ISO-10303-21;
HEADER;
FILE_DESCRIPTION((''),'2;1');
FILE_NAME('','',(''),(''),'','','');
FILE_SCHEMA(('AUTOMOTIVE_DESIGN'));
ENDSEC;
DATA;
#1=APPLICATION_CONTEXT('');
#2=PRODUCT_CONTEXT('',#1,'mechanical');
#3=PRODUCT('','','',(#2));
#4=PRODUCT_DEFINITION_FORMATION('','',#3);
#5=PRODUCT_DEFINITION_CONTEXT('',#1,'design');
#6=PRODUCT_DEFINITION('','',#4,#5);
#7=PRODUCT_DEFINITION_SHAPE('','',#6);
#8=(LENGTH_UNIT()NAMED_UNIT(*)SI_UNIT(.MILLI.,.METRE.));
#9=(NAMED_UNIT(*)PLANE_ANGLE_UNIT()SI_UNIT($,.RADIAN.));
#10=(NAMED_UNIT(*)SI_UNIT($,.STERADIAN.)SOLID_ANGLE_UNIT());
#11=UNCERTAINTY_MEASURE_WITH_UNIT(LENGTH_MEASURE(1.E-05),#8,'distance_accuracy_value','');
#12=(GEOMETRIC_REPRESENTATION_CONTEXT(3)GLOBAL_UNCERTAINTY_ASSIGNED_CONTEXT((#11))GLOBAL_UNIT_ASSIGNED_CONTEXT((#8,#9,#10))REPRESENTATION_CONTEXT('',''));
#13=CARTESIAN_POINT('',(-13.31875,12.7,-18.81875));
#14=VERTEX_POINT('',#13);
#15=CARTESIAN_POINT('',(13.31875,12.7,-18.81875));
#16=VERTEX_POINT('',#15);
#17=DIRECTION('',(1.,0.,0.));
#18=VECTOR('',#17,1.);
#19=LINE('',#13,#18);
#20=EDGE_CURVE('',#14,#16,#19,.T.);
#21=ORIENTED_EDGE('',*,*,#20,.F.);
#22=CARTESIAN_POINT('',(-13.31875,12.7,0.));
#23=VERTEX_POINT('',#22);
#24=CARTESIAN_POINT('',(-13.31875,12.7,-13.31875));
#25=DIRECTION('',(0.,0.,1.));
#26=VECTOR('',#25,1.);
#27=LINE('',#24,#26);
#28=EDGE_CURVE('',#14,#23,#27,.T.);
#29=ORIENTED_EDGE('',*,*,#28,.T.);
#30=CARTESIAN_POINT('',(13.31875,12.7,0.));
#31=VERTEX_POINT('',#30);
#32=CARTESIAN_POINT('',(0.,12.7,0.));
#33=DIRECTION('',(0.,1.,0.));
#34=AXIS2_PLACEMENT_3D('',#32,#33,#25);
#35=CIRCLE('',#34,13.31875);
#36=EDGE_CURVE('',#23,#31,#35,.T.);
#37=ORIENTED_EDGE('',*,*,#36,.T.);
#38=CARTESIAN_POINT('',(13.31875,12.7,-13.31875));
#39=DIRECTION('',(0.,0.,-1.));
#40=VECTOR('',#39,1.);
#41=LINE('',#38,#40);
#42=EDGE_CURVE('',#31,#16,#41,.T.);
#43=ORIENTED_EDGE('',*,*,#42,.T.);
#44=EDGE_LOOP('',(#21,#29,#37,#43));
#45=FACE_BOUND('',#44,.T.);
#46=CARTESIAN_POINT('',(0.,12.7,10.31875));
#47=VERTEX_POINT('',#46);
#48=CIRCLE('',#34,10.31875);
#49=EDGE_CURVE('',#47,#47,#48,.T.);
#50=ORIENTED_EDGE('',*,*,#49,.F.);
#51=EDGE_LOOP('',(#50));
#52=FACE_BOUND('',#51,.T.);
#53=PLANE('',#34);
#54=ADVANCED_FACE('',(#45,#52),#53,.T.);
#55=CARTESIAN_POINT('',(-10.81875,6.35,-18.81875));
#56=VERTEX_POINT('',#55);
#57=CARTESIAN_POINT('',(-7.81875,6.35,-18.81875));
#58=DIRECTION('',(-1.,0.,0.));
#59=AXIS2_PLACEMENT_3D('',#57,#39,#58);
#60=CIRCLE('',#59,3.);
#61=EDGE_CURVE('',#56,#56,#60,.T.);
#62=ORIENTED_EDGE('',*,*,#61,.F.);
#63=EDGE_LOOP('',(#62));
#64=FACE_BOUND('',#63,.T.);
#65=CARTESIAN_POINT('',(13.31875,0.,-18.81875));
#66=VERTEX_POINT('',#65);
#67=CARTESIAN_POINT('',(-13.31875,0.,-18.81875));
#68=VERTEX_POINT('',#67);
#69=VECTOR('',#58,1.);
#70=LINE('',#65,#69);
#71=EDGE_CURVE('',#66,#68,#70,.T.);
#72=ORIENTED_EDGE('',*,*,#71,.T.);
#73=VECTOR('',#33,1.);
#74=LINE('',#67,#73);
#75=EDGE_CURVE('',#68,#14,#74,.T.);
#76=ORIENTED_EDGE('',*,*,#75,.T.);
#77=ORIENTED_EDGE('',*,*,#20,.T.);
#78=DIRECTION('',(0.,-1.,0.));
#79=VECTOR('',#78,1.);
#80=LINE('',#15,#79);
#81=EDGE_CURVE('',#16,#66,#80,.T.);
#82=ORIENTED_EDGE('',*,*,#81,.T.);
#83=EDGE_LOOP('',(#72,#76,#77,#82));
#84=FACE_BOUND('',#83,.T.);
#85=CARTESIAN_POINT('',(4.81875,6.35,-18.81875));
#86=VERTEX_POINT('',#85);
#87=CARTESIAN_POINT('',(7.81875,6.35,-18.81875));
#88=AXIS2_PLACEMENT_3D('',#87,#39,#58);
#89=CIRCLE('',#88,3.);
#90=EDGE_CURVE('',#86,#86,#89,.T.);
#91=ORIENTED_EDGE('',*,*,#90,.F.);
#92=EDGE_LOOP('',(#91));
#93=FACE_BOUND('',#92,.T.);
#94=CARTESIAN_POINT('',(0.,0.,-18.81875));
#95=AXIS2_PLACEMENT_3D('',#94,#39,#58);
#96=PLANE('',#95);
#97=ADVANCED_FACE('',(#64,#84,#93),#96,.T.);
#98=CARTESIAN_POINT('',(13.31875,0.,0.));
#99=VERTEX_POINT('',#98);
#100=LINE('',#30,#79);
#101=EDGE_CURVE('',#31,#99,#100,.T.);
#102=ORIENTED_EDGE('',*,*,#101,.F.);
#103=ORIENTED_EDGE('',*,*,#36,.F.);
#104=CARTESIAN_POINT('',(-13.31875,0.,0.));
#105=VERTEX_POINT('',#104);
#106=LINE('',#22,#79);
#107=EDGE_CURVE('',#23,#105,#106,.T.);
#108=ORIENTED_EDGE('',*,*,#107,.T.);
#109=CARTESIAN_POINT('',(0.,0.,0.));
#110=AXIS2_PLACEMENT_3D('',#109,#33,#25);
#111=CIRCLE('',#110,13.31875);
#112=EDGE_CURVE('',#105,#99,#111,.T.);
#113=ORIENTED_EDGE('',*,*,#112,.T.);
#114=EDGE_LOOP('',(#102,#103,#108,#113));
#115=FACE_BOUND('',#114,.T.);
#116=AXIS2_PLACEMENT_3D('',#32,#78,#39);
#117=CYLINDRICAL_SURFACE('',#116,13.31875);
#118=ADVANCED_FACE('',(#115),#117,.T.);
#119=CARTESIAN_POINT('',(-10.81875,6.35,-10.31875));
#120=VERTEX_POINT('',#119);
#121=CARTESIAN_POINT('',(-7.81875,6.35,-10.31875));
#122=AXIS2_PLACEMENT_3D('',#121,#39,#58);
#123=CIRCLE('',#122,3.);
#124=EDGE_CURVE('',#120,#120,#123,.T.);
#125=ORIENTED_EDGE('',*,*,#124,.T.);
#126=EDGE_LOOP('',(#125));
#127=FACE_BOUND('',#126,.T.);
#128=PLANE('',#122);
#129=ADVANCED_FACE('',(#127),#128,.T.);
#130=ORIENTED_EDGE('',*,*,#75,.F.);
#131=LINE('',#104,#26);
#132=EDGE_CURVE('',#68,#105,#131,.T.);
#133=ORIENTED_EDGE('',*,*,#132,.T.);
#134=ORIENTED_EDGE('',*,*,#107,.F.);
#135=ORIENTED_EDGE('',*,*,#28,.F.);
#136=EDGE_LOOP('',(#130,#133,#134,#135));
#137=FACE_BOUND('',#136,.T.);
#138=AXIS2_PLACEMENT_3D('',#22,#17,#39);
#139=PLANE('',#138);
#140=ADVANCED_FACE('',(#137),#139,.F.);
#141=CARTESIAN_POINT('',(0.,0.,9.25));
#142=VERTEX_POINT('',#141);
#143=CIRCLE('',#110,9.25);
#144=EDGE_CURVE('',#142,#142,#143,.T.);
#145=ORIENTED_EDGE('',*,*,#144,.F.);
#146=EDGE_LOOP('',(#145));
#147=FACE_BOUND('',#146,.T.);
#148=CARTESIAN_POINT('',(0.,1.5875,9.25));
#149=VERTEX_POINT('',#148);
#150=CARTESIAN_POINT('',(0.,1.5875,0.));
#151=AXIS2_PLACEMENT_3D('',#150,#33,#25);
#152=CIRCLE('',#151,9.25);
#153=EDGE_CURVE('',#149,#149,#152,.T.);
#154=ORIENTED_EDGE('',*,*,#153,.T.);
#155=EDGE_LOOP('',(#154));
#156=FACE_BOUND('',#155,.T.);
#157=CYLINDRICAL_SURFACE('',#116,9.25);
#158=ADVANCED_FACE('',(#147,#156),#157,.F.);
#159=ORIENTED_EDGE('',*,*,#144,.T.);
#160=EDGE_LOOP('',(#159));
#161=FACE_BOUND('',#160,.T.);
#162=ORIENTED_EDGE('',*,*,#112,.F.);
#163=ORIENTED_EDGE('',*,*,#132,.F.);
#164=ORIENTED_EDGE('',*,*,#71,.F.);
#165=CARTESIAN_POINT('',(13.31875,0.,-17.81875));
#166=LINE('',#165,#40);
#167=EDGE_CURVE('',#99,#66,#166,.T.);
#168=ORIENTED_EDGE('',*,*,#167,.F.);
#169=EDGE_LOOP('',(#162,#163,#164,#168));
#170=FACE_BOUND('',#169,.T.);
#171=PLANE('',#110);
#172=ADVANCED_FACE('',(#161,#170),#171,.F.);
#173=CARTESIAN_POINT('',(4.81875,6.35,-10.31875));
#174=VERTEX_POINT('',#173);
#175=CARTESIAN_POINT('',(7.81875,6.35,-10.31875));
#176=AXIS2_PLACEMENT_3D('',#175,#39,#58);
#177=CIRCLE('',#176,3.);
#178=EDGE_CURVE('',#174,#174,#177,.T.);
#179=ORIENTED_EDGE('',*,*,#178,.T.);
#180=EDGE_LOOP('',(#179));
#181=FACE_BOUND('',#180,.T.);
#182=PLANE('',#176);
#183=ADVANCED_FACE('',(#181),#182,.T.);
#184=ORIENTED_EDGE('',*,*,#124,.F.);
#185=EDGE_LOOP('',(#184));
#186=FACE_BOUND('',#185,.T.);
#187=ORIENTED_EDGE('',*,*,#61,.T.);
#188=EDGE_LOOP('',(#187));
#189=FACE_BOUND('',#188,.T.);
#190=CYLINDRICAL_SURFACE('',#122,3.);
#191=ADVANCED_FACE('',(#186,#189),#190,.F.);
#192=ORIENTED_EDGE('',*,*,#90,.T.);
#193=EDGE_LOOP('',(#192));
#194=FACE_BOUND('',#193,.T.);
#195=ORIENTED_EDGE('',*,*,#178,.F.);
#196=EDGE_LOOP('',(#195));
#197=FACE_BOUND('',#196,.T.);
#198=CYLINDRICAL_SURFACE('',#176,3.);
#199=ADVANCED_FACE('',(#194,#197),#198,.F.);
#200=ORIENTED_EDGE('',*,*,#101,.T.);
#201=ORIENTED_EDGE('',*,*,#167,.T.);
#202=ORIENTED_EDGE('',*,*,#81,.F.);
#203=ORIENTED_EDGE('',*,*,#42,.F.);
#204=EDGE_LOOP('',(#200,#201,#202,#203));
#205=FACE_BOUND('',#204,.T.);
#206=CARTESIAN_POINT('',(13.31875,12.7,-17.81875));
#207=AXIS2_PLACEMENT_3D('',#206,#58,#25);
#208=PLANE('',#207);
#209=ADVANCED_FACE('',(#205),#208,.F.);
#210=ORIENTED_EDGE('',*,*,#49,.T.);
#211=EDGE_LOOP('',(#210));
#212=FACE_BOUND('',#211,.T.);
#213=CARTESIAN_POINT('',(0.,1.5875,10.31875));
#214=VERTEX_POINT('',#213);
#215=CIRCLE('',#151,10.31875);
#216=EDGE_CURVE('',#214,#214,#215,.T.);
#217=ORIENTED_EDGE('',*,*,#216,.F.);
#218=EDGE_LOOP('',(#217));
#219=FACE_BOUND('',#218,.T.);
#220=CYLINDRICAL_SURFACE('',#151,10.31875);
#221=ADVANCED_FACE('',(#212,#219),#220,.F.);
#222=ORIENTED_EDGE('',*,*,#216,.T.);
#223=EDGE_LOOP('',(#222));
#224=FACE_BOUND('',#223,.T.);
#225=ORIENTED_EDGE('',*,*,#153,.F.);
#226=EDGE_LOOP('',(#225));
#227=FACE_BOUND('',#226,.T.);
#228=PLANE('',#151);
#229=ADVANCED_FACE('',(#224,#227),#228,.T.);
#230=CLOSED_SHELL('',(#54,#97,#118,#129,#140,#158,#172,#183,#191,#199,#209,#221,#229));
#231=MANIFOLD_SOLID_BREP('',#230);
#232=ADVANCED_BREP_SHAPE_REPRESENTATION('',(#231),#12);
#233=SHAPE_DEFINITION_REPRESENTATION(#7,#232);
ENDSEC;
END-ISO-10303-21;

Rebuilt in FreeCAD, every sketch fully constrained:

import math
import FreeCAD as App
import Part
import Sketcher

doc = App.newDocument("Part")
body = doc.addObject("PartDesign::Body", "Body")

# Sketch on XZ plane
sketch1 = doc.addObject("Sketcher::SketchObject", "Sketch")
body.addObject(sketch1)
sketch1.AttachmentSupport = (doc.XZ_Plane, [""])
sketch1.MapMode = "FlatFace"
sketch1.addGeometry([
    Part.LineSegment(App.Vector(-13, -18, 0), App.Vector(-13, 0, 0)),  # 0
    Part.ArcOfCircle(Part.Circle(App.Vector(0, 0, 0), App.Vector(0, 0, 1), 13), math.radians(0), math.radians(180)),  # 1
    Part.LineSegment(App.Vector(13, 0, 0), App.Vector(13, -18, 0)),  # 2
    Part.LineSegment(App.Vector(13, -18, 0), App.Vector(-13, -18, 0)),  # 3
    Part.Circle(App.Vector(0, 0, 0), App.Vector(0, 0, 1), 9),  # 4
], False)
sketch1.addConstraint([
    Sketcher.Constraint("Tangent", 0, 2, 1, 2),
    Sketcher.Constraint("Tangent", 1, 1, 2, 1),
    Sketcher.Constraint("Coincident", 2, 2, 3, 1),
    Sketcher.Constraint("Coincident", 3, 2, 0, 1),
    Sketcher.Constraint("Vertical", 0),
    Sketcher.Constraint("Vertical", 2),
    Sketcher.Constraint("Horizontal", 3),
    Sketcher.Constraint("Coincident", 1, 3, -1, 1),
    Sketcher.Constraint("Coincident", 4, 3, -1, 1),
    Sketcher.Constraint("Diameter", 4, 18.5),
    Sketcher.Constraint("Radius", 1, 13.31875),
    Sketcher.Constraint("DistanceY", 0, 1, 0, 2, 17.81875),
])
pad1 = doc.addObject("PartDesign::Pad", "Pad")
body.addObject(pad1)
pad1.Profile = sketch1
pad1.Length = 12.7
pad1.Reversed = True

# Sketch on XZ plane
sketch2 = doc.addObject("Sketcher::SketchObject", "Sketch001")
body.addObject(sketch2)
sketch2.AttachmentSupport = (doc.XZ_Plane, [""])
sketch2.MapMode = "FlatFace"
sketch2.AttachmentOffset = App.Placement(App.Vector(0, 0, -12.7), App.Rotation())
sketch2.addGeometry(Part.Circle(App.Vector(0, 0, 0), App.Vector(0, 0, 1), 10), False)
sketch2.addConstraint([
    Sketcher.Constraint("Coincident", 0, 3, -1, 1),
    Sketcher.Constraint("Diameter", 0, 20.6375),
])
pocket1 = doc.addObject("PartDesign::Pocket", "Pocket")
body.addObject(pocket1)
pocket1.Profile = sketch2
pocket1.Length = 11.1125
pocket1.Reversed = True

# Sketch on XY plane
sketch3 = doc.addObject("Sketcher::SketchObject", "Sketch002")
body.addObject(sketch3)
sketch3.AttachmentSupport = (doc.XY_Plane, [""])
sketch3.MapMode = "FlatFace"
sketch3.AttachmentOffset = App.Placement(App.Vector(0, 0, -17.81875), App.Rotation())
sketch3.addGeometry([
    Part.Circle(App.Vector(7.8, 6.3, 0), App.Vector(0, 0, 1), 3),
    Part.Circle(App.Vector(-7.8, 6.3, 0), App.Vector(0, 0, 1), 3),
], False)
sketch3.addConstraint([
    Sketcher.Constraint("Equal", 0, 1),
    Sketcher.Constraint("Symmetric", 0, 3, 1, 3, -2),
    Sketcher.Constraint("Diameter", 0, 6.0),
    Sketcher.Constraint("DistanceY", -1, 1, 0, 3, 6.35),
    Sketcher.Constraint("DistanceX", 1, 3, 0, 3, 15.6375),
])
pocket2 = doc.addObject("PartDesign::Pocket", "Pocket001")
body.addObject(pocket2)
pocket2.Profile = sketch3
pocket2.Length = 7.5
pocket2.Reversed = True

# Sketch on XY plane
sketch4 = doc.addObject("Sketcher::SketchObject", "Sketch003")
body.addObject(sketch4)
sketch4.AttachmentSupport = (doc.XY_Plane, [""])
sketch4.MapMode = "FlatFace"
sketch4.AttachmentOffset = App.Placement(App.Vector(0, 0, -18.81875), App.Rotation())
sketch4.addGeometry([
    Part.LineSegment(App.Vector(13.3, 12.7, 0), App.Vector(13.3, 0, 0)),  # 0
    Part.LineSegment(App.Vector(13.3, 0, 0), App.Vector(-13.3, 0, 0)),  # 1
    Part.LineSegment(App.Vector(-13.3, 0, 0), App.Vector(-13.3, 12.7, 0)),  # 2
    Part.LineSegment(App.Vector(-13.3, 12.7, 0), App.Vector(13.3, 12.7, 0)),  # 3
    Part.Circle(App.Vector(7.8, 6.3, 0), App.Vector(0, 0, 1), 3),  # 4
    Part.Circle(App.Vector(-7.8, 6.3, 0), App.Vector(0, 0, 1), 3),  # 5
], False)
sketch4.addConstraint([
    Sketcher.Constraint("Coincident", 0, 2, 1, 1),
    Sketcher.Constraint("Coincident", 1, 2, 2, 1),
    Sketcher.Constraint("Coincident", 2, 2, 3, 1),
    Sketcher.Constraint("Coincident", 3, 2, 0, 1),
    Sketcher.Constraint("Vertical", 0),
    Sketcher.Constraint("Horizontal", 1),
    Sketcher.Constraint("Vertical", 2),
    Sketcher.Constraint("Horizontal", 3),
    Sketcher.Constraint("Equal", 4, 5),
    Sketcher.Constraint("Symmetric", 0, 2, 1, 2, -1, 1),
    Sketcher.Constraint("Symmetric", 4, 3, 5, 3, -2),
    Sketcher.Constraint("Diameter", 4, 6.0),
    Sketcher.Constraint("DistanceY", 0, 2, 0, 1, 12.7),
    Sketcher.Constraint("DistanceX", 4, 3, 0, 2, 5.5),
    Sketcher.Constraint("DistanceY", -1, 1, 4, 3, 6.35),
    Sketcher.Constraint("DistanceX", 1, 2, 1, 1, 26.6375),
])
pad2 = doc.addObject("PartDesign::Pad", "Pad001")
body.addObject(pad2)
pad2.Profile = sketch4
pad2.Length = 1

doc.recompute()
